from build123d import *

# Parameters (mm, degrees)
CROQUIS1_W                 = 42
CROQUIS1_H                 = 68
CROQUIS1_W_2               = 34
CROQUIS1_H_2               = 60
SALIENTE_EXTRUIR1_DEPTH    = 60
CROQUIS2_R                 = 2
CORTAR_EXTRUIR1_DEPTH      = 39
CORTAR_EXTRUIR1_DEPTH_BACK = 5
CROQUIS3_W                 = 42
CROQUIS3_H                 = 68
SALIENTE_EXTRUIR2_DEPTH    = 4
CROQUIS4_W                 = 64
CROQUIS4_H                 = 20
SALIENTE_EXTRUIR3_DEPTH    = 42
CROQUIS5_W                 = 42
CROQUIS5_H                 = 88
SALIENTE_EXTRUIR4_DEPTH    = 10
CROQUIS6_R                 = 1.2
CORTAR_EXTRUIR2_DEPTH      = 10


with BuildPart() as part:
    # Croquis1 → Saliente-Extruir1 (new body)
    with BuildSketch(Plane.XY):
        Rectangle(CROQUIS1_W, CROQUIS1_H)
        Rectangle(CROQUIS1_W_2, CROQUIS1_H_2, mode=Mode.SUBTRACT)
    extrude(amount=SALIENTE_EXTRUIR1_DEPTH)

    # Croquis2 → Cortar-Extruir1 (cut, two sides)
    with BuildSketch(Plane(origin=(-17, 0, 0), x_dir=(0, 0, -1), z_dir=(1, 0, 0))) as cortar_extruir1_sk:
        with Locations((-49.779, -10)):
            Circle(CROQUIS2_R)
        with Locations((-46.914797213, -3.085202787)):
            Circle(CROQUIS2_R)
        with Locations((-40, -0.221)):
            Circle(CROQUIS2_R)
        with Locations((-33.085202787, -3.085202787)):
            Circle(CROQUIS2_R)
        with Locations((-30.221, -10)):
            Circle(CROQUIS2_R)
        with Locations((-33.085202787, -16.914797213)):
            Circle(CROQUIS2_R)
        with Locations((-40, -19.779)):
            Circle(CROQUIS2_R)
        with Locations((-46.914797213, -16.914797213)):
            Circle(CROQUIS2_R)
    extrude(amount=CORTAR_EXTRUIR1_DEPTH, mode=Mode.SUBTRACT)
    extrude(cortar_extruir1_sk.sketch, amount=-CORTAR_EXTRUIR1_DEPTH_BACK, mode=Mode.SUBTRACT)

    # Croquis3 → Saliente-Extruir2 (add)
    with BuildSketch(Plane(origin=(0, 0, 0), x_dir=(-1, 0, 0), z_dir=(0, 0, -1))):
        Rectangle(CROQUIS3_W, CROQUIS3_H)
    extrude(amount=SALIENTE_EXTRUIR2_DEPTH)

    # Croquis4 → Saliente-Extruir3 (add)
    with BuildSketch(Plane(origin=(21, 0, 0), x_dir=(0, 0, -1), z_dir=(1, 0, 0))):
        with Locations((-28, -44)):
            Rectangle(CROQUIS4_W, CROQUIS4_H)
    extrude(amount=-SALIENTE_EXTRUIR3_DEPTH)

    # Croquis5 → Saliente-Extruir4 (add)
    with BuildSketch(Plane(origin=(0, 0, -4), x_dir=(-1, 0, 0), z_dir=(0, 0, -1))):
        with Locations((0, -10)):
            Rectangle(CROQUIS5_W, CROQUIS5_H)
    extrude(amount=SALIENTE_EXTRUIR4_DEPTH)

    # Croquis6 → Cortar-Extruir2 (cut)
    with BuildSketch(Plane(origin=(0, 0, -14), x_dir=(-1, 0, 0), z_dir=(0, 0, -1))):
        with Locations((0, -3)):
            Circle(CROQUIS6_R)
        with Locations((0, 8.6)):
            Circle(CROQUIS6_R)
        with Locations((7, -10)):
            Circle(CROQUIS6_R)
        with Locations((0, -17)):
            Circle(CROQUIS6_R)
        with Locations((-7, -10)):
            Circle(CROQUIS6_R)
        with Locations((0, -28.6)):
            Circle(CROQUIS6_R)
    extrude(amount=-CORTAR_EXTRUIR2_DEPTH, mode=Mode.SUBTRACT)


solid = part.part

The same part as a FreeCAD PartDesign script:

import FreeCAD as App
import Part
import Sketcher

V = App.Vector
Q = App.Units.Quantity

doc = App.newDocument("Part")
body = doc.addObject("PartDesign::Body", "Body")

# Sketch on XY plane
sketch1 = doc.addObject("Sketcher::SketchObject", "Sketch")
body.addObject(sketch1)
sketch1.AttachmentSupport = (doc.XY_Plane, [""])
sketch1.MapMode = "FlatFace"
sketch1.addGeometry(Part.LineSegment(V(-21, 34, 0), V(-21, -34, 0)), False)
sketch1.addGeometry(Part.LineSegment(V(-21, -34, 0), V(21, -34, 0)), False)
sketch1.addGeometry(Part.LineSegment(V(21, -34, 0), V(21, 34, 0)), False)
sketch1.addGeometry(Part.LineSegment(V(21, 34, 0), V(-21, 34, 0)), False)
sketch1.addGeometry(Part.LineSegment(V(17, -30, 0), V(-17, -30, 0)), False)
sketch1.addGeometry(Part.LineSegment(V(-17, -30, 0), V(-17, 30, 0)), False)
sketch1.addGeometry(Part.LineSegment(V(-17, 30, 0), V(17, 30, 0)), False)
sketch1.addGeometry(Part.LineSegment(V(17, 30, 0), V(17, -30, 0)), False)
sketch1.addConstraint(Sketcher.Constraint("Coincident", 0, 2, 1, 1))
sketch1.addConstraint(Sketcher.Constraint("Coincident", 1, 2, 2, 1))
sketch1.addConstraint(Sketcher.Constraint("Coincident", 2, 2, 3, 1))
sketch1.addConstraint(Sketcher.Constraint("Coincident", 3, 2, 0, 1))
sketch1.addConstraint(Sketcher.Constraint("Coincident", 4, 2, 5, 1))
sketch1.addConstraint(Sketcher.Constraint("Coincident", 5, 2, 6, 1))
sketch1.addConstraint(Sketcher.Constraint("Coincident", 6, 2, 7, 1))
sketch1.addConstraint(Sketcher.Constraint("Coincident", 7, 2, 4, 1))
sketch1.addConstraint(Sketcher.Constraint("Vertical", 0))
sketch1.addConstraint(Sketcher.Constraint("Horizontal", 1))
sketch1.addConstraint(Sketcher.Constraint("Vertical", 2))
sketch1.addConstraint(Sketcher.Constraint("Horizontal", 3))
sketch1.addConstraint(Sketcher.Constraint("Horizontal", 4))
sketch1.addConstraint(Sketcher.Constraint("Vertical", 5))
sketch1.addConstraint(Sketcher.Constraint("Horizontal", 6))
sketch1.addConstraint(Sketcher.Constraint("Vertical", 7))
sketch1.addConstraint(Sketcher.Constraint("Symmetric", 0, 2, 2, 2, -1, 1))
sketch1.addConstraint(Sketcher.Constraint("Symmetric", 4, 2, 6, 2, -1, 1))
sketch1.addConstraint(Sketcher.Constraint("DistanceX", 1, 1, 1, 2, Q("42 mm")))
sketch1.addConstraint(Sketcher.Constraint("DistanceX", 4, 2, 4, 1, Q("34 mm")))
sketch1.addConstraint(Sketcher.Constraint("DistanceY", 0, 2, 0, 1, Q("68 mm")))
sketch1.addConstraint(Sketcher.Constraint("DistanceY", 5, 1, 5, 2, Q("60 mm")))
pad1 = doc.addObject("PartDesign::Pad", "Pad")
body.addObject(pad1)
pad1.Profile = sketch1
pad1.Length = 60

# Sketch on YZ plane
sketch2 = doc.addObject("Sketcher::SketchObject", "Sketch001")
body.addObject(sketch2)
sketch2.AttachmentSupport = (doc.YZ_Plane, [""])
sketch2.MapMode = "FlatFace"
sketch2.AttachmentOffset = App.Placement(V(0, 0, -17), App.Rotation())
sketch2.addGeometry(Part.Circle(V(-10, 49.8, 0), V(0, 0, 1), 2), False)
sketch2.addGeometry(Part.Circle(V(-3.1, 46.9, 0), V(0, 0, 1), 2), False)
sketch2.addGeometry(Part.Circle(V(-0.2, 40, 0), V(0, 0, 1), 2), False)
sketch2.addGeometry(Part.Circle(V(-3.1, 33.1, 0), V(0, 0, 1), 2), False)
sketch2.addGeometry(Part.Circle(V(-10, 30.2, 0), V(0, 0, 1), 2), False)
sketch2.addGeometry(Part.Circle(V(-16.9, 33.1, 0), V(0, 0, 1), 2), False)
sketch2.addGeometry(Part.Circle(V(-19.8, 40, 0), V(0, 0, 1), 2), False)
sketch2.addGeometry(Part.Circle(V(-16.9, 46.9, 0), V(0, 0, 1), 2), False)
sketch2.addConstraint(Sketcher.Constraint("Equal", 0, 1))
sketch2.addConstraint(Sketcher.Constraint("Equal", 1, 2))
sketch2.addConstraint(Sketcher.Constraint("Equal", 2, 3))
sketch2.addConstraint(Sketcher.Constraint("Equal", 3, 4))
sketch2.addConstraint(Sketcher.Constraint("Equal", 4, 5))
sketch2.addConstraint(Sketcher.Constraint("Equal", 5, 6))
sketch2.addConstraint(Sketcher.Constraint("Equal", 6, 7))
sketch2.addConstraint(Sketcher.Constraint("Horizontal", 3, 3, 5, 3))
sketch2.addConstraint(Sketcher.Constraint("Horizontal", 2, 3, 6, 3))
sketch2.addConstraint(Sketcher.Constraint("Horizontal", 1, 3, 7, 3))
sketch2.addConstraint(Sketcher.Constraint("Vertical", 1, 3, 3, 3))
sketch2.addConstraint(Sketcher.Constraint("Vertical", 0, 3, 4, 3))
sketch2.addConstraint(Sketcher.Constraint("Vertical", 5, 3, 7, 3))
sketch2.addConstraint(Sketcher.Constraint("Diameter", 0, Q("4 mm")))
sketch2.addConstraint(Sketcher.Constraint("DistanceX", 0, 3, -1, 1, Q("10 mm")))
sketch2.addConstraint(Sketcher.Constraint("DistanceY", -1, 1, 2, 3, Q("40 mm")))
sketch2.addConstraint(Sketcher.Constraint("DistanceY", -1, 1, 0, 3, Q("49.779 mm")))
sketch2.addConstraint(Sketcher.Constraint("DistanceX", 2, 3, -1, 1, Q("0.221 mm")))
sketch2.addConstraint(Sketcher.Constraint("DistanceY", -1, 1, 4, 3, Q("30.221 mm")))
sketch2.addConstraint(Sketcher.Constraint("DistanceX", 6, 3, -1, 1, Q("19.779 mm")))
sketch2.addConstraint(Sketcher.Constraint("DistanceX", 1, 3, -1, 1, Q("3.085203 mm")))
sketch2.addConstraint(Sketcher.Constraint("DistanceY", -1, 1, 1, 3, Q("46.914797 mm")))
sketch2.addConstraint(Sketcher.Constraint("DistanceY", -1, 1, 3, 3, Q("33.085203 mm")))
sketch2.addConstraint(Sketcher.Constraint("DistanceX", 5, 3, -1, 1, Q("16.914797 mm")))
pocket1 = doc.addObject("PartDesign::Pocket", "Pocket")
body.addObject(pocket1)
pocket1.Profile = sketch2
pocket1.Type = "ThroughAll"
pocket1.Midplane = True

# Sketch on XY plane
sketch3 = doc.addObject("Sketcher::SketchObject", "Sketch002")
body.addObject(sketch3)
sketch3.AttachmentSupport = (doc.XY_Plane, [""])
sketch3.MapMode = "FlatFace"
sketch3.addGeometry(Part.LineSegment(V(21, 34, 0), V(21, -34, 0)), False)
sketch3.addGeometry(Part.LineSegment(V(21, -34, 0), V(-21, -34, 0)), False)
sketch3.addGeometry(Part.LineSegment(V(-21, -34, 0), V(-21, 34, 0)), False)
sketch3.addGeometry(Part.LineSegment(V(-21, 34, 0), V(21, 34, 0)), False)
sketch3.addConstraint(Sketcher.Constraint("Coincident", 0, 2, 1, 1))
sketch3.addConstraint(Sketcher.Constraint("Coincident", 1, 2, 2, 1))
sketch3.addConstraint(Sketcher.Constraint("Coincident", 2, 2, 3, 1))
sketch3.addConstraint(Sketcher.Constraint("Coincident", 3, 2, 0, 1))
sketch3.addConstraint(Sketcher.Constraint("Vertical", 0))
sketch3.addConstraint(Sketcher.Constraint("Horizontal", 1))
sketch3.addConstraint(Sketcher.Constraint("Vertical", 2))
sketch3.addConstraint(Sketcher.Constraint("Horizontal", 3))
sketch3.addConstraint(Sketcher.Constraint("Symmetric", 0, 2, 2, 2, -1, 1))
sketch3.addConstraint(Sketcher.Constraint("DistanceX", 1, 2, 1, 1, Q("42 mm")))
sketch3.addConstraint(Sketcher.Constraint("DistanceY", 0, 2, 0, 1, Q("68 mm")))
pad2 = doc.addObject("PartDesign::Pad", "Pad001")
body.addObject(pad2)
pad2.Profile = sketch3
pad2.Length = 4
pad2.Reversed = True

# Sketch on YZ plane
sketch4 = doc.addObject("Sketcher::SketchObject", "Sketch003")
body.addObject(sketch4)
sketch4.AttachmentSupport = (doc.YZ_Plane, [""])
sketch4.MapMode = "FlatFace"
sketch4.AttachmentOffset = App.Placement(V(0, 0, 21), App.Rotation())
sketch4.addGeometry(Part.LineSegment(V(-34, 60, 0), V(-54, 60, 0)), False)
sketch4.addGeometry(Part.LineSegment(V(-54, 60, 0), V(-54, -4, 0)), False)
sketch4.addGeometry(Part.LineSegment(V(-54, -4, 0), V(-34, -4, 0)), False)
sketch4.addGeometry(Part.LineSegment(V(-34, -4, 0), V(-34, 60, 0)), False)
sketch4.addConstraint(Sketcher.Constraint("Coincident", 0, 2, 1, 1))
sketch4.addConstraint(Sketcher.Constraint("Coincident", 1, 2, 2, 1))
sketch4.addConstraint(Sketcher.Constraint("Coincident", 2, 2, 3, 1))
sketch4.addConstraint(Sketcher.Constraint("Coincident", 3, 2, 0, 1))
sketch4.addConstraint(Sketcher.Constraint("Horizontal", 0))
sketch4.addConstraint(Sketcher.Constraint("Vertical", 1))
sketch4.addConstraint(Sketcher.Constraint("Horizontal", 2))
sketch4.addConstraint(Sketcher.Constraint("Vertical", 3))
sketch4.addConstraint(Sketcher.Constraint("DistanceX", 0, 2, 0, 1, Q("20 mm")))
sketch4.addConstraint(Sketcher.Constraint("DistanceY", 1, 2, 1, 1, Q("64 mm")))
sketch4.addConstraint(Sketcher.Constraint("DistanceX", 0, 2, -1, 1, Q("54 mm")))
sketch4.addConstraint(Sketcher.Constraint("DistanceY", -1, 1, 0, 2, Q("60 mm")))
pad3 = doc.addObject("PartDesign::Pad", "Pad002")
body.addObject(pad3)
pad3.Profile = sketch4
pad3.Length = 42
pad3.Reversed = True

# Sketch on XY plane
sketch5 = doc.addObject("Sketcher::SketchObject", "Sketch004")
body.addObject(sketch5)
sketch5.AttachmentSupport = (doc.XY_Plane, [""])
sketch5.MapMode = "FlatFace"
sketch5.AttachmentOffset = App.Placement(V(0, 0, -4), App.Rotation())
sketch5.addGeometry(Part.LineSegment(V(21, 34, 0), V(21, -54, 0)), False)
sketch5.addGeometry(Part.LineSegment(V(21, -54, 0), V(-21, -54, 0)), False)
sketch5.addGeometry(Part.LineSegment(V(-21, -54, 0), V(-21, 34, 0)), False)
sketch5.addGeometry(Part.LineSegment(V(-21, 34, 0), V(21, 34, 0)), False)
sketch5.addConstraint(Sketcher.Constraint("Coincident", 0, 2, 1, 1))
sketch5.addConstraint(Sketcher.Constraint("Coincident", 1, 2, 2, 1))
sketch5.addConstraint(Sketcher.Constraint("Coincident", 2, 2, 3, 1))
sketch5.addConstraint(Sketcher.Constraint("Coincident", 3, 2, 0, 1))
sketch5.addConstraint(Sketcher.Constraint("Vertical", 0))
sketch5.addConstraint(Sketcher.Constraint("Horizontal", 1))
sketch5.addConstraint(Sketcher.Constraint("Vertical", 2))
sketch5.addConstraint(Sketcher.Constraint("Horizontal", 3))
sketch5.addConstraint(Sketcher.Constraint("DistanceX", 1, 2, 1, 1, Q("42 mm")))
sketch5.addConstraint(Sketcher.Constraint("DistanceY", 0, 2, 0, 1, Q("88 mm")))
sketch5.addConstraint(Sketcher.Constraint("DistanceX", -1, 1, 0, 2, Q("21 mm")))
sketch5.addConstraint(Sketcher.Constraint("DistanceY", 0, 2, -1, 1, Q("54 mm")))
pad4 = doc.addObject("PartDesign::Pad", "Pad003")
body.addObject(pad4)
pad4.Profile = sketch5
pad4.Length = 10
pad4.Reversed = True

# Sketch on XY plane
sketch6 = doc.addObject("Sketcher::SketchObject", "Sketch005")
body.addObject(sketch6)
sketch6.AttachmentSupport = (doc.XY_Plane, [""])
sketch6.MapMode = "FlatFace"
sketch6.AttachmentOffset = App.Placement(V(0, 0, -14), App.Rotation())
sketch6.addGeometry(Part.Circle(V(0, -3, 0), V(0, 0, 1), 1.2), False)
sketch6.addGeometry(Part.Circle(V(0, 8.6, 0), V(0, 0, 1), 1.2), False)
sketch6.addGeometry(Part.Circle(V(-7, -10, 0), V(0, 0, 1), 1.2), False)
sketch6.addGeometry(Part.Circle(V(0, -17, 0), V(0, 0, 1), 1.2), False)
sketch6.addGeometry(Part.Circle(V(7, -10, 0), V(0, 0, 1), 1.2), False)
sketch6.addGeometry(Part.Circle(V(0, -28.6, 0), V(0, 0, 1), 1.2), False)
sketch6.addConstraint(Sketcher.Constraint("Equal", 0, 1))
sketch6.addConstraint(Sketcher.Constraint("Equal", 1, 2))
sketch6.addConstraint(Sketcher.Constraint("Equal", 2, 3))
sketch6.addConstraint(Sketcher.Constraint("Equal", 3, 4))
sketch6.addConstraint(Sketcher.Constraint("Equal", 4, 5))
sketch6.addConstraint(Sketcher.Constraint("Symmetric", 2, 3, 4, 3, -2))
sketch6.addConstraint(Sketcher.Constraint("PointOnObject", 0, 3, -2))
sketch6.addConstraint(Sketcher.Constraint("PointOnObject", 1, 3, -2))
sketch6.addConstraint(Sketcher.Constraint("PointOnObject", 3, 3, -2))
sketch6.addConstraint(Sketcher.Constraint("PointOnObject", 5, 3, -2))
sketch6.addConstraint(Sketcher.Constraint("Diameter", 0, Q("2.4 mm")))
sketch6.addConstraint(Sketcher.Constraint("DistanceY", 0, 3, -1, 1, Q("3 mm")))
sketch6.addConstraint(Sketcher.Constraint("DistanceX", 2, 3, -1, 1, Q("7 mm")))
sketch6.addConstraint(Sketcher.Constraint("DistanceY", 2, 3, -1, 1, Q("10 mm")))
sketch6.addConstraint(Sketcher.Constraint("DistanceY", 3, 3, -1, 1, Q("17 mm")))
sketch6.addConstraint(Sketcher.Constraint("DistanceY", -1, 1, 1, 3, Q("8.6 mm")))
sketch6.addConstraint(Sketcher.Constraint("DistanceY", 5, 3, -1, 1, Q("28.6 mm")))
pocket2 = doc.addObject("PartDesign::Pocket", "Pocket001")
body.addObject(pocket2)
pocket2.Profile = sketch6
pocket2.Length = 10
pocket2.Reversed = True

doc.recompute()
